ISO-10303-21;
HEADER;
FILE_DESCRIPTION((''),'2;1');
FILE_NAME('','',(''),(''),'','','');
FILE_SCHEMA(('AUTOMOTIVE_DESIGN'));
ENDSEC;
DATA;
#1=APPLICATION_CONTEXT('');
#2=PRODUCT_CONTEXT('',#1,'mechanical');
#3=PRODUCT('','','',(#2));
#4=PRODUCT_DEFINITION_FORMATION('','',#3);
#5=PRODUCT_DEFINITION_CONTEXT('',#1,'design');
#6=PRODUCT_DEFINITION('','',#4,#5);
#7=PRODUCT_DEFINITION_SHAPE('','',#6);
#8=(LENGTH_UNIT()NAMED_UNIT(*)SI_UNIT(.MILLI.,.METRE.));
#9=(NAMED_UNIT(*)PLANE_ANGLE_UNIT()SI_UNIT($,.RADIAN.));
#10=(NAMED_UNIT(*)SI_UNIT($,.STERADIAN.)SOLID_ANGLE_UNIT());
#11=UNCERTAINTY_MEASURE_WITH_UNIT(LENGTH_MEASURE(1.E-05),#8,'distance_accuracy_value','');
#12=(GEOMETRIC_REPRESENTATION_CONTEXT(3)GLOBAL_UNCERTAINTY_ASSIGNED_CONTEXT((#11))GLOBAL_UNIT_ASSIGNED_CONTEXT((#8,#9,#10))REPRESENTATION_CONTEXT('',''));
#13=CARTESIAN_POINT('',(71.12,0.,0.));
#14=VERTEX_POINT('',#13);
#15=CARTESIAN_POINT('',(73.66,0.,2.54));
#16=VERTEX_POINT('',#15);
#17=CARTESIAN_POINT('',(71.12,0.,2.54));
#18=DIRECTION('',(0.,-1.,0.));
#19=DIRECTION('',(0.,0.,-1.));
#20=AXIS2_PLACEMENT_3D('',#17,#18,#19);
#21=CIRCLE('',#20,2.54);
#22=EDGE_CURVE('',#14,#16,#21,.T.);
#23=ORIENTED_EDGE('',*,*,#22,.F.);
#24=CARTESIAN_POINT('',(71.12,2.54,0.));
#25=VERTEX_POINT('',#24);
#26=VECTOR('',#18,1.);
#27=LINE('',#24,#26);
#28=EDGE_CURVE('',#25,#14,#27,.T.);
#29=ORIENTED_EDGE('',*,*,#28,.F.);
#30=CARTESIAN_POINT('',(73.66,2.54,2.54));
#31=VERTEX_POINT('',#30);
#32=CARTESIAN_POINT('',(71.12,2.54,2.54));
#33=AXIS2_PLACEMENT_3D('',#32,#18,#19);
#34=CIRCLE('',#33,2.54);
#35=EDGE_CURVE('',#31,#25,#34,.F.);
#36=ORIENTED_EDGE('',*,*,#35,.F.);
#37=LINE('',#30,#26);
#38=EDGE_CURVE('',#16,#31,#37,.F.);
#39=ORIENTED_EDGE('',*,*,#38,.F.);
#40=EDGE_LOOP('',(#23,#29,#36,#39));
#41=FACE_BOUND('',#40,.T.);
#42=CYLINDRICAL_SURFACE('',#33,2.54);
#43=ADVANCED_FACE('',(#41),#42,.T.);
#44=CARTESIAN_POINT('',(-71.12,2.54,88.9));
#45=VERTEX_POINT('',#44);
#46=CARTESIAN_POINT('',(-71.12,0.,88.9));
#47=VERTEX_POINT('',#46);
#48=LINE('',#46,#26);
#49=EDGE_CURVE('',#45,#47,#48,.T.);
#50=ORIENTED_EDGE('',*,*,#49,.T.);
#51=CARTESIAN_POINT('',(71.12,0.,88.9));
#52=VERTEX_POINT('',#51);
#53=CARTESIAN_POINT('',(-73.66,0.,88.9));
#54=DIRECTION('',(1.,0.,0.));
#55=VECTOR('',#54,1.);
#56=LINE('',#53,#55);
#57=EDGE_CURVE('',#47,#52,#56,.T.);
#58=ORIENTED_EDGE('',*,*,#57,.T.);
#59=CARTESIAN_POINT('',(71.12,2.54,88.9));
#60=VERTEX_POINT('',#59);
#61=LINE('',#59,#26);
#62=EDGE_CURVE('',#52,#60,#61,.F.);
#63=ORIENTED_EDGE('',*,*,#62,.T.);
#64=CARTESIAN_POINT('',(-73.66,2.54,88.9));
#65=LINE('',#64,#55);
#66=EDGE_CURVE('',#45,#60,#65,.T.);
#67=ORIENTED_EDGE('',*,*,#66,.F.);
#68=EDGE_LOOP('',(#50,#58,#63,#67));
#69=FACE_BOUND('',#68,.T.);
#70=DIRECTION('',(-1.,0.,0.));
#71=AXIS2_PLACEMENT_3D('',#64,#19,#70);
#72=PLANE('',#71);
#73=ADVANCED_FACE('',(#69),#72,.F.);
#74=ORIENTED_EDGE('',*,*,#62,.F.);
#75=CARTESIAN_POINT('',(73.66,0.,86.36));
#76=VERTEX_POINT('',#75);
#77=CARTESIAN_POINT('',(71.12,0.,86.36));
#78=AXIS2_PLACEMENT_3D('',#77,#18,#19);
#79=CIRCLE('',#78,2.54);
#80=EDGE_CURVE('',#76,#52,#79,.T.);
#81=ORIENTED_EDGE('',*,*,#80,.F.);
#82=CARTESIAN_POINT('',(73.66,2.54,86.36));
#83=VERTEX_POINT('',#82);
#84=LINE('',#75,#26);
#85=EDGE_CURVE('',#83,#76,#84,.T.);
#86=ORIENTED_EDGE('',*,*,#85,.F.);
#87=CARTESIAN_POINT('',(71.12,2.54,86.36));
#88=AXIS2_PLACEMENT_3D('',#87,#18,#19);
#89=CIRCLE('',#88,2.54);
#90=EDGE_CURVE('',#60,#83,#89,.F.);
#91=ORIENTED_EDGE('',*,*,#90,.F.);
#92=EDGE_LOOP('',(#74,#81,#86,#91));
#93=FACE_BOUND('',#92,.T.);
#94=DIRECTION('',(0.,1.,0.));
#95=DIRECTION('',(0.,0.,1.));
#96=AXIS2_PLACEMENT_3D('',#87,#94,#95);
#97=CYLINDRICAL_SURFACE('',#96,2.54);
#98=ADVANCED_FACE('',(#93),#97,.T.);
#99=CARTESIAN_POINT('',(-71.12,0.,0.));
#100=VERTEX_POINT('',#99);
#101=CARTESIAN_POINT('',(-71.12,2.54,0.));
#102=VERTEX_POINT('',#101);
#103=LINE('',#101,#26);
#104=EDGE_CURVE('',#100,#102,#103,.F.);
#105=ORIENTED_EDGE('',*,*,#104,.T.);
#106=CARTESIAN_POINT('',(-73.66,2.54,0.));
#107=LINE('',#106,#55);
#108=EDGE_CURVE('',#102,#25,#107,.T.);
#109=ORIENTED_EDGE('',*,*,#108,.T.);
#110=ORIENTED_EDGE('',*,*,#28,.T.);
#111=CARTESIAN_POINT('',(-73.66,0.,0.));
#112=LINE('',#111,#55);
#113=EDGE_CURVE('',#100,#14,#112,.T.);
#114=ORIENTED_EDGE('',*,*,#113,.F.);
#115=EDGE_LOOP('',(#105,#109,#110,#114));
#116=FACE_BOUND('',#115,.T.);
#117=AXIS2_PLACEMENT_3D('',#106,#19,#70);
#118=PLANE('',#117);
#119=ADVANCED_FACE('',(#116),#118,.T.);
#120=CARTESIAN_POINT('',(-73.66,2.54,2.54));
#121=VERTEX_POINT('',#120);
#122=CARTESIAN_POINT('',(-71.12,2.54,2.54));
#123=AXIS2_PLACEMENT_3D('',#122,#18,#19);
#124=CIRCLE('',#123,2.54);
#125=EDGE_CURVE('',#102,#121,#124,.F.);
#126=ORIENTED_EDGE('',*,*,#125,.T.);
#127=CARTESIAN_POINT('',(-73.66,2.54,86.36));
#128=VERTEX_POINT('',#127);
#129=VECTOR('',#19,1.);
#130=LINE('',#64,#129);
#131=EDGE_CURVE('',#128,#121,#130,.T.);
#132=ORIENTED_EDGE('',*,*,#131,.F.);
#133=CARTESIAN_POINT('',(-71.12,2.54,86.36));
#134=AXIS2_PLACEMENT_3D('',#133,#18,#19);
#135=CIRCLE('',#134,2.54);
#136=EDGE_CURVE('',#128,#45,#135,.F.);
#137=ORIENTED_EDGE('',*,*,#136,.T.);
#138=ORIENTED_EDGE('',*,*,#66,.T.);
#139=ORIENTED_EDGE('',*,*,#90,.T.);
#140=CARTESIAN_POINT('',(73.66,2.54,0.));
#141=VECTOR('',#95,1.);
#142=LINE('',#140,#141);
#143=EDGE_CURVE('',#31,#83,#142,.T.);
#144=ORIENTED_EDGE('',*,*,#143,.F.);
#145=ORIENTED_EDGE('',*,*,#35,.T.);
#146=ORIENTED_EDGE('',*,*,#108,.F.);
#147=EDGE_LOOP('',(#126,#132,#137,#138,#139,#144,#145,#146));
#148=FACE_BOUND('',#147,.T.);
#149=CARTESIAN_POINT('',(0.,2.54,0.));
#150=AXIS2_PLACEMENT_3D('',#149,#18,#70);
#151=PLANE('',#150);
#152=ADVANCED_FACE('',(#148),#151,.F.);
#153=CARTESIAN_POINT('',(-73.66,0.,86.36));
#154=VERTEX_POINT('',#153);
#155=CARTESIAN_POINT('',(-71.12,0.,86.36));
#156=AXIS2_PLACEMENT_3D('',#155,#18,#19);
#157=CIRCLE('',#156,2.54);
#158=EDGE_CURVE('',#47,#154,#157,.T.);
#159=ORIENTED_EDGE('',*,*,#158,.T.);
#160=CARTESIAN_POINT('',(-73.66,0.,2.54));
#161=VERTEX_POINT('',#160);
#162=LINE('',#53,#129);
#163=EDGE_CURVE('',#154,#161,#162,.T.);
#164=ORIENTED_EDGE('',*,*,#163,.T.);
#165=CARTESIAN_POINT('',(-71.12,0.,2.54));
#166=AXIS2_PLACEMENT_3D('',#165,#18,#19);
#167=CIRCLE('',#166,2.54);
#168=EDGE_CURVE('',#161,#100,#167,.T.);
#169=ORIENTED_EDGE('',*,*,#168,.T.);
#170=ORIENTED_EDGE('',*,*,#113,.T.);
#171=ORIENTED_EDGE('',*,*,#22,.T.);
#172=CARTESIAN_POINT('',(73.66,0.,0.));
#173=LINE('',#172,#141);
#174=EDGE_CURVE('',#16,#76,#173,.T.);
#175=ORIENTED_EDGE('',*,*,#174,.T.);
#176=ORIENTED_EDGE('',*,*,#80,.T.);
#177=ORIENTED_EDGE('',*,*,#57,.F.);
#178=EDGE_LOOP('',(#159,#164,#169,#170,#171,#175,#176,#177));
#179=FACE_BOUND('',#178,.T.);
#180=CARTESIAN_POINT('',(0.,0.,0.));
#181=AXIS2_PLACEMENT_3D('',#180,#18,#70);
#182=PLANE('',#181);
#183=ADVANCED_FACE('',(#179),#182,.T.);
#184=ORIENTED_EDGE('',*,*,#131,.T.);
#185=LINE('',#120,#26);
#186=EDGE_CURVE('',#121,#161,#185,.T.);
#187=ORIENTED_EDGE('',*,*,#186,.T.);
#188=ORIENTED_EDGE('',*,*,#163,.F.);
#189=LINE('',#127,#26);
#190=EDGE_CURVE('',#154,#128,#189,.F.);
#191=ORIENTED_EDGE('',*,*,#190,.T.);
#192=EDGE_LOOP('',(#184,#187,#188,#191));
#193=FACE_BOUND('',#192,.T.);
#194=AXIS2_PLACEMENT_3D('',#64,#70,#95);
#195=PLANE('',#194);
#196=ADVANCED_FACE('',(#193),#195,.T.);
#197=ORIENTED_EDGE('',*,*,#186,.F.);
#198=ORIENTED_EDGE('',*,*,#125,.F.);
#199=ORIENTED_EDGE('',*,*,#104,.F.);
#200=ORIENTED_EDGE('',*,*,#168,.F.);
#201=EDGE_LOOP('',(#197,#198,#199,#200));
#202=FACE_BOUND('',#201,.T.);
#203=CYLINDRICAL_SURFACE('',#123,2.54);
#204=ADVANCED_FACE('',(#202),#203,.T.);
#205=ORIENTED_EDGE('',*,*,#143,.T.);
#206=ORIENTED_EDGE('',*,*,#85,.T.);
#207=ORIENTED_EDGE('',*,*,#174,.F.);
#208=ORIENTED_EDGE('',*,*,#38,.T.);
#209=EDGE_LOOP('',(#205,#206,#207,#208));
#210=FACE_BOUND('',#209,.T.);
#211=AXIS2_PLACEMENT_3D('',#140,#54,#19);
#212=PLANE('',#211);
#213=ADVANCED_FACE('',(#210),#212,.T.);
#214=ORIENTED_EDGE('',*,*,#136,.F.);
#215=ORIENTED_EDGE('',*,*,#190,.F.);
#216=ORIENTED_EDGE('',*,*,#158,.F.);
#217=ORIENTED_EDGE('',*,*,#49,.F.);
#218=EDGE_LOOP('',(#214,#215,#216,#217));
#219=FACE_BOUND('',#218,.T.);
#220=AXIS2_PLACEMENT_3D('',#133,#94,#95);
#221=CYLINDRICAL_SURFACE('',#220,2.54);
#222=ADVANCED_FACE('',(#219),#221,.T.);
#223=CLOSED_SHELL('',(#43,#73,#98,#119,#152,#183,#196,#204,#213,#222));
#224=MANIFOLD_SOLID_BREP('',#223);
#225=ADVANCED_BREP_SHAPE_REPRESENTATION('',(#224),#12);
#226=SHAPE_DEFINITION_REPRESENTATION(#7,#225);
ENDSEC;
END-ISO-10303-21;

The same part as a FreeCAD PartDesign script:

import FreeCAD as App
import Part
import Sketcher

V = App.Vector
Q = App.Units.Quantity


def edges_at(feature, points):
    """Names of the edges that pass closest to the given points."""
    edges = feature.Shape.Edges
    near = lambda p: min(range(len(edges)), key=lambda i: edges[i].distToShape(Part.Vertex(*p))[0])
    return sorted({f"Edge{near(p) + 1}" for p in points})

doc = App.newDocument("Part")
params = doc.addObject("Spreadsheet::Sheet", "Params")
for row, (alias, value) in enumerate([
    ("sketch1_width", "5.8 in"),
    ("sketch1_height", "3.5 in"),
    ("pad1_length", "0.1 in"),
    ("fillet_radius", "0.1 in"),
], start=1):
    params.set(f"A{row}", alias)
    params.set(f"B{row}", "=" + value)
    params.setAlias(f"B{row}", alias)

body = doc.addObject("PartDesign::Body", "Body")

# Sketch on XZ plane
sketch1 = body.newObject("Sketcher::SketchObject", "Sketch")
sketch1.AttachmentSupport = (doc.getObject("XZ_Plane"), [""])
sketch1.MapMode = "FlatFace"
sketch1.addGeometry([
    Part.LineSegment(V(-74, 0, 0), V(-74, 89, 0)),
    Part.LineSegment(V(-74, 89, 0), V(74, 89, 0)),
    Part.LineSegment(V(74, 89, 0), V(74, 0, 0)),
    Part.LineSegment(V(74, 0, 0), V(-74, 0, 0)),
], False)
sketch1.addConstraint([
    Sketcher.Constraint("Coincident", 0, 2, 1, 1),
    Sketcher.Constraint("Coincident", 1, 2, 2, 1),
    Sketcher.Constraint("Coincident", 2, 2, 3, 1),
    Sketcher.Constraint("Coincident", 3, 2, 0, 1),
    Sketcher.Constraint("Vertical", 0),
    Sketcher.Constraint("Horizontal", 1),
    Sketcher.Constraint("Vertical", 2),
    Sketcher.Constraint("Horizontal", 3),
    Sketcher.Constraint("Symmetric", 2, 2, 3, 2, -1, 1),
    Sketcher.Constraint("DistanceX", 1, 1, 1, 2, Q("5.8 in")),
    Sketcher.Constraint("DistanceY", 0, 1, 0, 2, Q("3.5 in")),
])
sketch1.setExpression("Constraints[9]", "Params.sketch1_width")
sketch1.setExpression("Constraints[10]", "Params.sketch1_height")
pad1 = body.newObject("PartDesign::Pad", "Pad")
pad1.Profile = sketch1
pad1.setExpression("Length", "Params.pad1_length")
pad1.Reversed = True
doc.recompute()

fillet = body.newObject("PartDesign::Fillet", "Fillet")
fillet.Base = (pad1, edges_at(pad1, [
    (-73.66, 1.27, 88.9),
    (-73.66, 1.27, 0),
    (73.66, 1.27, 0),
    (73.66, 1.27, 88.9),
]))
fillet.setExpression("Radius", "Params.fillet_radius")

doc.recompute()
